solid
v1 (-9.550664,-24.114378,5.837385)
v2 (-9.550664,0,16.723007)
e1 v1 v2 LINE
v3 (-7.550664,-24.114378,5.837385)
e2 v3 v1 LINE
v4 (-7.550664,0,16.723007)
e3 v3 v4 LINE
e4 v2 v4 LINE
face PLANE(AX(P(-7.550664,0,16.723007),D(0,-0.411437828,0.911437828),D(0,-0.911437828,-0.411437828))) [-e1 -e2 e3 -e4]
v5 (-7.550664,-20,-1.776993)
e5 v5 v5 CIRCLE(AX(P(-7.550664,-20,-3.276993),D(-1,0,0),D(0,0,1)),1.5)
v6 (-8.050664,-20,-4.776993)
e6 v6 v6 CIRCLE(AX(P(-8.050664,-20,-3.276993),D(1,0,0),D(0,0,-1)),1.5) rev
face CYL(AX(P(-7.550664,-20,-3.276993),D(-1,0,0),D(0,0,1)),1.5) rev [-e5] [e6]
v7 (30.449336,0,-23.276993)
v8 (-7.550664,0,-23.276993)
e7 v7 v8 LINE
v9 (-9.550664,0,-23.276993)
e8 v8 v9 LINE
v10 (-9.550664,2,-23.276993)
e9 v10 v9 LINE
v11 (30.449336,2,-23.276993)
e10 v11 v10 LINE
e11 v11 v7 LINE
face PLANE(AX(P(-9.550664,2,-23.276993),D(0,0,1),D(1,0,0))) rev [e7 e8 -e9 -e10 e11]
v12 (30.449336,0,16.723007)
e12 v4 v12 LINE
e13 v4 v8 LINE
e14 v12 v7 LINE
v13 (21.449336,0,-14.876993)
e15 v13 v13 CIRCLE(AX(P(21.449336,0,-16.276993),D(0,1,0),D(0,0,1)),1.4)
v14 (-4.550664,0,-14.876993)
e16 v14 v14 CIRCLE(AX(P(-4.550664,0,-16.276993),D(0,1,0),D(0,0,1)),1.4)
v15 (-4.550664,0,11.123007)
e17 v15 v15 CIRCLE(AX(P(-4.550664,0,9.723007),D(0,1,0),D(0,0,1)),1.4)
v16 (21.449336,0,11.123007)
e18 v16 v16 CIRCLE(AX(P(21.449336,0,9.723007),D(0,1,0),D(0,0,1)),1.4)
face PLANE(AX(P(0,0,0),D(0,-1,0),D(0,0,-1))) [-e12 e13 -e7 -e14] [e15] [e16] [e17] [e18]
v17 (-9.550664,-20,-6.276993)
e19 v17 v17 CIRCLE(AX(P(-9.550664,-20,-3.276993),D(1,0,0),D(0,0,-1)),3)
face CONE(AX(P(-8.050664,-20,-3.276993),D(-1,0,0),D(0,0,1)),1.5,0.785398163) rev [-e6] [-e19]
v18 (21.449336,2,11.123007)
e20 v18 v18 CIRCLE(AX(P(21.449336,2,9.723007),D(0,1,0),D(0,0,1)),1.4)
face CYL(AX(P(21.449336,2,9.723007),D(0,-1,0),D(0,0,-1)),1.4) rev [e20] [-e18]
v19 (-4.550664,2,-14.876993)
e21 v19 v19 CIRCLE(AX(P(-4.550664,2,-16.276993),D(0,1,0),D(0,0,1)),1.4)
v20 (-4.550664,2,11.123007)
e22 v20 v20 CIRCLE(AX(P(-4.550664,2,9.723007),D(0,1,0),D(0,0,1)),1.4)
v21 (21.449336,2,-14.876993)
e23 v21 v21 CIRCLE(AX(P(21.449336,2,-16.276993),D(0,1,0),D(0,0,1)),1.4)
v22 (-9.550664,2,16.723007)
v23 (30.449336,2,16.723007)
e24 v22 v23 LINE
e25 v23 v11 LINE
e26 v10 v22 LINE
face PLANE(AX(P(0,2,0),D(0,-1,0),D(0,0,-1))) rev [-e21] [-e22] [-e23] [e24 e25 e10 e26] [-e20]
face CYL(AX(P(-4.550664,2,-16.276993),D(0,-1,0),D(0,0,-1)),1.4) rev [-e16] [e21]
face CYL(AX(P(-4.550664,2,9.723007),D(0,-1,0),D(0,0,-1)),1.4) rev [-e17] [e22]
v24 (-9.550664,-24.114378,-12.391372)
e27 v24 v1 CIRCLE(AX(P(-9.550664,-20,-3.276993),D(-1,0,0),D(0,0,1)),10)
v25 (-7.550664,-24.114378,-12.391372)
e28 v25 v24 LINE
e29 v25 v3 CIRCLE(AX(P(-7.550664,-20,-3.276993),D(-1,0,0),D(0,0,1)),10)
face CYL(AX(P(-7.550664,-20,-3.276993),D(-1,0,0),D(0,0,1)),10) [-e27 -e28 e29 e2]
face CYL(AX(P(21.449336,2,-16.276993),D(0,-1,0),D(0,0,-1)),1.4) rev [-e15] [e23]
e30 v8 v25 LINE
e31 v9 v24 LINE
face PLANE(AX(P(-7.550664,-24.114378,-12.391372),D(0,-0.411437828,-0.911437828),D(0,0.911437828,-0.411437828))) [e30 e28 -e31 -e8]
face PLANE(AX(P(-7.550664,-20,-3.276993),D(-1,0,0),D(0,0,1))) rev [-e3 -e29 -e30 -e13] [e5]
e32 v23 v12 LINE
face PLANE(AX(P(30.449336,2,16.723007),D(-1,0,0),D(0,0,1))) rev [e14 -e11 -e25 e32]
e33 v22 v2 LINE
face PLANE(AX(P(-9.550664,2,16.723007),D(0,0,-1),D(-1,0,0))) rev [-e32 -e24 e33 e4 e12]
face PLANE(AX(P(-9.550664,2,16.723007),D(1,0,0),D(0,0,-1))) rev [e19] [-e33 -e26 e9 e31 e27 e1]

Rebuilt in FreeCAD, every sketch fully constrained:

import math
import FreeCAD as App
import Part
import Sketcher

V = App.Vector


def edges_at(feature, points):
    """Names of the edges that pass closest to the given points."""
    edges = feature.Shape.Edges
    near = lambda p: min(range(len(edges)), key=lambda i: edges[i].distToShape(Part.Vertex(*p))[0])
    return sorted({f"Edge{near(p) + 1}" for p in points})


def add_polygon(sketch, points):
    """Adds a closed chain of lines whose ends are joined by coincident constraints."""
    first, n = sketch.GeometryCount, len(points)
    for a, b in zip(points, points[1:] + points[:1]):
        sketch.addGeometry(Part.LineSegment(App.Vector(*a, 0), App.Vector(*b, 0)), False)
    for i in range(n):
        sketch.addConstraint(Sketcher.Constraint("Coincident", first + i, 2, first + (i + 1) % n, 1))

doc = App.newDocument("Part")
body = doc.addObject("PartDesign::Body", "Body")

sketch1 = doc.addObject("Sketcher::SketchObject", "Sketch")
body.addObject(sketch1)
sketch1.AttachmentSupport = (doc.XZ_Plane, [""])
sketch1.MapMode = "FlatFace"
add_polygon(sketch1, [(-9.6, -23.3), (-9.6, 16.7), (30.4, 16.7), (30.4, -23.3)])
sketch1.addGeometry(Part.Circle(V(-4.6, 9.7, 0), V(0, 0, 1), 1.4), False)
sketch1.addGeometry(Part.Circle(V(21.4, 9.7, 0), V(0, 0, 1), 1.4), False)
sketch1.addGeometry(Part.Circle(V(-4.6, -16.3, 0), V(0, 0, 1), 1.4), False)
sketch1.addGeometry(Part.Circle(V(21.4, -16.3, 0), V(0, 0, 1), 1.4), False)
sketch1.addConstraint([
    Sketcher.Constraint("Vertical", 0),
    Sketcher.Constraint("Horizontal", 1),
    Sketcher.Constraint("Vertical", 2),
    Sketcher.Constraint("Horizontal", 3),
    Sketcher.Constraint("Equal", 4, 5),
    Sketcher.Constraint("Equal", 5, 6),
    Sketcher.Constraint("Equal", 6, 7),
    Sketcher.Constraint("Horizontal", 4, 3, 5, 3),
    Sketcher.Constraint("Horizontal", 6, 3, 7, 3),
    Sketcher.Constraint("Vertical", 4, 3, 6, 3),
    Sketcher.Constraint("Vertical", 5, 3, 7, 3),
    Sketcher.Constraint("Equal", 3, 0),
    Sketcher.Constraint("Diameter", 4, 2.8),
    Sketcher.Constraint("DistanceX", 1, 1, 1, 2, 40.0),
    Sketcher.Constraint("DistanceX", 4, 3, 5, 3, 26.0),
    Sketcher.Constraint("DistanceY", 6, 3, 4, 3, 26.0),
    Sketcher.Constraint("DistanceX", 0, 2, 4, 3, 5.0),
    Sketcher.Constraint("DistanceY", 4, 3, 0, 2, 7.0),
    Sketcher.Constraint("DistanceX", 4, 3, -1, 1, 4.550664),
    Sketcher.Constraint("DistanceY", -1, 1, 4, 3, 9.723007),
])
pad1 = doc.addObject("PartDesign::Pad", "Pad")
body.addObject(pad1)
pad1.Profile = sketch1
pad1.Length = 2
pad1.Reversed = True

sketch2 = doc.addObject("Sketcher::SketchObject", "Sketch001")
body.addObject(sketch2)
sketch2.AttachmentSupport = (doc.YZ_Plane, [""])
sketch2.MapMode = "FlatFace"
sketch2.AttachmentOffset = App.Placement(V(0, 0, -9.550664), App.Rotation())
sketch2.addGeometry([
    Part.LineSegment(V(0, -23.3, 0), V(-24.1, -12.4, 0)),
    Part.ArcOfCircle(Part.Circle(V(-20, -3.3, 0), V(0, 0, 1), 10), math.radians(114), math.radians(246)),
    Part.LineSegment(V(-24.1, 5.8, 0), V(0, 16.7, 0)),
    Part.LineSegment(V(0, 16.7, 0), V(0, -23.3, 0)),
    Part.Circle(V(-20, -3.3, 0), V(0, 0, 1), 1.5),
], False)
sketch2.addConstraint([
    Sketcher.Constraint("Tangent", 0, 2, 1, 2),
    Sketcher.Constraint("Tangent", 1, 1, 2, 1),
    Sketcher.Constraint("Coincident", 2, 2, 3, 1),
    Sketcher.Constraint("Coincident", 3, 2, 0, 1),
    Sketcher.Constraint("Vertical", 3),
    Sketcher.Constraint("Coincident", 4, 3, 1, 3),
    Sketcher.Constraint("PointOnObject", 2, 2, -2),
    Sketcher.Constraint("Vertical", 0, 2, 1, 1),
    Sketcher.Constraint("Diameter", 4, 3.0),
    Sketcher.Constraint("Radius", 1, 10.0),
    Sketcher.Constraint("DistanceY", 3, 2, 3, 1, 40.0),
    Sketcher.Constraint("DistanceX", 1, 3, -1, 1, 20.0),
    Sketcher.Constraint("DistanceY", 0, 2, -1, 1, 12.391372),
])
pad2 = doc.addObject("PartDesign::Pad", "Pad001")
body.addObject(pad2)
pad2.Profile = sketch2
pad2.Length = 2
doc.recompute()

chamfer = doc.addObject("PartDesign::Chamfer", "Chamfer")
body.addObject(chamfer)
chamfer.Base = (pad2, edges_at(pad2, [(-9.551, -20, -4.777)]))
chamfer.Size = 1.5

doc.recompute()
